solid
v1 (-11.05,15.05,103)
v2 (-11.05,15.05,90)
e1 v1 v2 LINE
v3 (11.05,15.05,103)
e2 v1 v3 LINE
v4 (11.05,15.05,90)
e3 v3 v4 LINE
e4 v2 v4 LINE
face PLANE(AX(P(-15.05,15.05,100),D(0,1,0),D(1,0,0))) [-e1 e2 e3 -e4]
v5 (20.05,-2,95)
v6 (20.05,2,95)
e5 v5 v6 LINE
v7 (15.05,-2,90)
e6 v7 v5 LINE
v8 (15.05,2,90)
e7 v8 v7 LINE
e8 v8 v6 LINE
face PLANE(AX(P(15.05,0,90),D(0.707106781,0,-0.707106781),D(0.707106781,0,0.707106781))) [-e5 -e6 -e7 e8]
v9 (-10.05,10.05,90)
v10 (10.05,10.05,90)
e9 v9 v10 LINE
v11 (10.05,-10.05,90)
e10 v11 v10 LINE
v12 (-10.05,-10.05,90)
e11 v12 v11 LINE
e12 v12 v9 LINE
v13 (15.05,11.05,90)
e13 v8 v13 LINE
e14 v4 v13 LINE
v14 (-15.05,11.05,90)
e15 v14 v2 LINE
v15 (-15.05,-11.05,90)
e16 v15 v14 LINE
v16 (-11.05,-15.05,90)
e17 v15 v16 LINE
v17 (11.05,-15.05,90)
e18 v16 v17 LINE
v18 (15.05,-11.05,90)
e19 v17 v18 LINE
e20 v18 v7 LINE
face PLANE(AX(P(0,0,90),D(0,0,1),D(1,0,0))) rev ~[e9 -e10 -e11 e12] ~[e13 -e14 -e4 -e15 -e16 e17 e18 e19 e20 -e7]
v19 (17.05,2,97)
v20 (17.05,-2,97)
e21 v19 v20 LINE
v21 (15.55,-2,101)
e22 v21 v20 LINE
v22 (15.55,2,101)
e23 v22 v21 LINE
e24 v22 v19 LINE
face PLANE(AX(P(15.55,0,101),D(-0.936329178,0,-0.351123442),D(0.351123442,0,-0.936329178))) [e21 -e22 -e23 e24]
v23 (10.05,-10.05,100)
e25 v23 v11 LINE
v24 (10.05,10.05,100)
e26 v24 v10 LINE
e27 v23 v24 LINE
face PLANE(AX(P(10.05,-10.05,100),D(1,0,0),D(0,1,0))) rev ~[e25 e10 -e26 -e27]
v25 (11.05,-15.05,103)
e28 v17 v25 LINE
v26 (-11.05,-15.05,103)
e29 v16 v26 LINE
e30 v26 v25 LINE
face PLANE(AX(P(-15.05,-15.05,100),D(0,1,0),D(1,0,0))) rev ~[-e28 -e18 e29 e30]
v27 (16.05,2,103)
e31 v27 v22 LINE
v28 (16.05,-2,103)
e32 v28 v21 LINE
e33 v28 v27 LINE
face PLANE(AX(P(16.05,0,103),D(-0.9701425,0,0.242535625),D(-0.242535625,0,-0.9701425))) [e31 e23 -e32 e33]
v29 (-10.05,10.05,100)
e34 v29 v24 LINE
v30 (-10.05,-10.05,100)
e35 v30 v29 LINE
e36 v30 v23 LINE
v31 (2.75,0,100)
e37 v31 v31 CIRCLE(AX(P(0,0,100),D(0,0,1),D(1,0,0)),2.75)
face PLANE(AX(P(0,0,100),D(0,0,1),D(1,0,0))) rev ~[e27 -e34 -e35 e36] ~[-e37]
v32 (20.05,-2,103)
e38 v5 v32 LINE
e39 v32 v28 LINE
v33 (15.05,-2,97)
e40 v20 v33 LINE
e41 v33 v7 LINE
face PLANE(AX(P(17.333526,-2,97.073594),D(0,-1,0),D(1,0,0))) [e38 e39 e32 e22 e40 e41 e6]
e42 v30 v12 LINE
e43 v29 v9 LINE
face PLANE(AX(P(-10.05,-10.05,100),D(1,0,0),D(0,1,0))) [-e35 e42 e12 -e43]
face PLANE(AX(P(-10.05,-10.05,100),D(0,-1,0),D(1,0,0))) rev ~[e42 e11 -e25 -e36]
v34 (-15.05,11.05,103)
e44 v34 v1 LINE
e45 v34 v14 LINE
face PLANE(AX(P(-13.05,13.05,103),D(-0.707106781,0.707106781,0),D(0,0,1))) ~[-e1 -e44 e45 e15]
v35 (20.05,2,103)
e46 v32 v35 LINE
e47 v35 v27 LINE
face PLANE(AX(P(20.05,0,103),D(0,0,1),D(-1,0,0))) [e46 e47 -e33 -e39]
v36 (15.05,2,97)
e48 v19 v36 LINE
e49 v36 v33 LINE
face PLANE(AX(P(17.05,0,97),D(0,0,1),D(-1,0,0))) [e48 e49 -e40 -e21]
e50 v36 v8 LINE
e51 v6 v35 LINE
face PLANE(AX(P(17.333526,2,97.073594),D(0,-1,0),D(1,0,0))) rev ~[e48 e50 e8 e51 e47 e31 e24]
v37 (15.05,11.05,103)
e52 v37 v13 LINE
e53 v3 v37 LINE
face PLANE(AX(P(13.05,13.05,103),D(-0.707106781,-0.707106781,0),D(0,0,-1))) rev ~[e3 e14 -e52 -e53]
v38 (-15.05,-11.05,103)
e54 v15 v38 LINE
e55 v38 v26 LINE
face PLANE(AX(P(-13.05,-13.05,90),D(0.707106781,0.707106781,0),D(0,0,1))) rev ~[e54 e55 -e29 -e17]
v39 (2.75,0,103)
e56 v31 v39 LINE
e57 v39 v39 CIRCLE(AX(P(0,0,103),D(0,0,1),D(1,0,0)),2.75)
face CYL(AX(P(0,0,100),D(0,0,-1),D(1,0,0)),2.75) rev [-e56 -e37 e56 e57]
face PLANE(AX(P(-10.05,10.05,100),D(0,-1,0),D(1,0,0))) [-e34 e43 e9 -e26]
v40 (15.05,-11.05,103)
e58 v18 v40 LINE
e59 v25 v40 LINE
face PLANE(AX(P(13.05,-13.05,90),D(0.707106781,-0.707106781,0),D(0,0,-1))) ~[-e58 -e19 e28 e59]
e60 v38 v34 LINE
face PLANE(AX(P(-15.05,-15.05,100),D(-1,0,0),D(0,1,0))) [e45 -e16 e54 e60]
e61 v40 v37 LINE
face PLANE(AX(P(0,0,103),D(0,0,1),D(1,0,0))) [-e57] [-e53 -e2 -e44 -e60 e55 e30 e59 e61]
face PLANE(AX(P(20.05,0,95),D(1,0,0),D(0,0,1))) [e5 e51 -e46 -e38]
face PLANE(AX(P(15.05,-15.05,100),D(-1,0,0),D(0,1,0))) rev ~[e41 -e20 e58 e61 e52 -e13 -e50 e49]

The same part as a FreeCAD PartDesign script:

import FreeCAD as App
import Part
import Sketcher
from FreeCAD import Vector
Q = App.Units.Quantity


def edges_at(feature, points):
    """Names of the edges that pass closest to the given points."""
    edges = feature.Shape.Edges
    near = lambda p: min(range(len(edges)), key=lambda i: edges[i].distToShape(Part.Vertex(*p))[0])
    return sorted({f"Edge{near(p) + 1}" for p in points})


def add_polygon(sketch, points):
    """Adds a closed chain of lines whose ends are joined by coincident constraints."""
    first, n = sketch.GeometryCount, len(points)
    for a, b in zip(points, points[1:] + points[:1]):
        sketch.addGeometry(Part.LineSegment(App.Vector(*a, 0), App.Vector(*b, 0)), False)
    for i in range(n):
        sketch.addConstraint(Sketcher.Constraint("Coincident", first + i, 2, first + (i + 1) % n, 1))

doc = App.newDocument("Part")
params = doc.addObject("Spreadsheet::Sheet", "Params")
for row, (alias, value) in enumerate([
    ("sketch1_width", "30.1 mm"),
    ("sketch1_width2", "20.1 mm"),
    ("pad1_length", "10 mm"),
    ("sketch2_diameter", "5.5 mm"),
    ("sketch2_width", "30.1 mm"),
    ("pad2_length", "3 mm"),
    ("sketch3_width", "2 mm"),
    ("sketch3_width2", "4 mm"),
    ("sketch3_height", "7 mm"),
    ("sketch3_height2", "8 mm"),
    ("pad3_length", "4 mm"),
    ("chamfer_size", "4 mm"),
], start=1):
    params.set(f"A{row}", alias)
    params.set(f"B{row}", "=" + value)
    params.setAlias(f"B{row}", alias)

body = doc.addObject("PartDesign::Body", "Body")

# Sketch on XY plane
sketch1 = doc.addObject("Sketcher::SketchObject", "Sketch")
body.addObject(sketch1)
sketch1.AttachmentSupport = (doc.XY_Plane, [""])
sketch1.MapMode = "FlatFace"
add_polygon(sketch1, [(-15, 15), (-15, -15), (15, -15), (15, 15)])  # lines 0-3
add_polygon(sketch1, [(10, -10), (-10, -10), (-10, 10), (10, 10)])  # lines 4-7
sketch1.addConstraint([
    Sketcher.Constraint("Vertical", 0),
    Sketcher.Constraint("Horizontal", 1),
    Sketcher.Constraint("Vertical", 2),
    Sketcher.Constraint("Horizontal", 3),
    Sketcher.Constraint("Horizontal", 4),
    Sketcher.Constraint("Vertical", 5),
    Sketcher.Constraint("Horizontal", 6),
    Sketcher.Constraint("Vertical", 7),
    Sketcher.Constraint("Symmetric", 0, 2, 2, 2, -1, 1),
    Sketcher.Constraint("Symmetric", 4, 2, 6, 2, -1, 1),
    Sketcher.Constraint("Equal", 3, 0),
    Sketcher.Constraint("Equal", 6, 5),
    Sketcher.Constraint("DistanceX", 1, 1, 1, 2, Q("30.1 mm")),
    Sketcher.Constraint("DistanceX", 4, 2, 4, 1, Q("20.1 mm")),
])
sketch1.setExpression("Constraints[20]", "Params.sketch1_width")
sketch1.setExpression("Constraints[21]", "Params.sketch1_width2")
pad1 = doc.addObject("PartDesign::Pad", "Pad")
body.addObject(pad1)
pad1.Profile = sketch1
pad1.setExpression("Length", "Params.pad1_length")
pad1.Reversed = True

# Sketch on XY plane
sketch2 = doc.addObject("Sketcher::SketchObject", "Sketch001")
body.addObject(sketch2)
sketch2.AttachmentSupport = (doc.XY_Plane, [""])
sketch2.MapMode = "FlatFace"
add_polygon(sketch2, [(-15.1, 15.1), (-15.1, -15.1), (15.1, -15.1), (15.1, 15.1)])  # lines 0-3
sketch2.addGeometry(Part.Circle(Vector(0, 0, 0), Vector(0, 0, 1), 2.8), False)  # 4
sketch2.addConstraint([
    Sketcher.Constraint("Vertical", 0),
    Sketcher.Constraint("Horizontal", 1),
    Sketcher.Constraint("Vertical", 2),
    Sketcher.Constraint("Horizontal", 3),
    Sketcher.Constraint("Coincident", 4, 3, -1, 1),
    Sketcher.Constraint("Symmetric", 0, 2, 2, 2, -1, 1),
    Sketcher.Constraint("Equal", 3, 0),
    Sketcher.Constraint("Diameter", 4, Q("5.5 mm")),
    Sketcher.Constraint("DistanceX", 1, 1, 1, 2, Q("30.1 mm")),
])
sketch2.setExpression("Constraints[11]", "Params.sketch2_diameter")
sketch2.setExpression("Constraints[12]", "Params.sketch2_width")
pad2 = doc.addObject("PartDesign::Pad", "Pad001")
body.addObject(pad2)
pad2.Profile = sketch2
pad2.setExpression("Length", "Params.pad2_length")

# Sketch on XZ plane
sketch3 = doc.addObject("Sketcher::SketchObject", "Sketch002")
body.addObject(sketch3)
sketch3.AttachmentSupport = (doc.XZ_Plane, [""])
sketch3.MapMode = "FlatFace"
add_polygon(sketch3, [(16.1, 3), (15.6, 1), (17.1, -3), (15.1, -3), (15.1, -10), (20.1, -5), (20.1, 3)])  # lines 0-6
sketch3.addConstraint([
    Sketcher.Constraint("Horizontal", 2),
    Sketcher.Constraint("Vertical", 3),
    Sketcher.Constraint("Vertical", 5),
    Sketcher.Constraint("Horizontal", 6),
    Sketcher.Constraint("DistanceX", 2, 2, 2, 1, Q("2 mm")),
    Sketcher.Constraint("DistanceX", 6, 2, 6, 1, Q("4 mm")),
    Sketcher.Constraint("DistanceY", 3, 2, 3, 1, Q("7 mm")),
    Sketcher.Constraint("DistanceY", 5, 1, 5, 2, Q("8 mm")),
    Sketcher.Constraint("Angle", 4, Q("45 deg")),
    Sketcher.Constraint("DistanceY", -1, 1, 0, 2, Q("1 mm")),
    Sketcher.Constraint("DistanceY", 1, 2, -1, 1, Q("3 mm")),
    Sketcher.Constraint("DistanceY", 4, 2, -1, 1, Q("5 mm")),
    Sketcher.Constraint("DistanceX", 0, 2, 1, 2, Q("1.5 mm")),
    Sketcher.Constraint("DistanceX", -1, 1, 0, 2, Q("15.55 mm")),
])
sketch3.setExpression("Constraints[11]", "Params.sketch3_width")
sketch3.setExpression("Constraints[12]", "Params.sketch3_width2")
sketch3.setExpression("Constraints[13]", "Params.sketch3_height")
sketch3.setExpression("Constraints[14]", "Params.sketch3_height2")
pad3 = doc.addObject("PartDesign::Pad", "Pad002")
body.addObject(pad3)
pad3.Profile = sketch3
pad3.setExpression("Length", "Params.pad3_length")
pad3.Midplane = True
doc.recompute()

chamfer = doc.addObject("PartDesign::Chamfer", "Chamfer")
body.addObject(chamfer)
chamfer.Base = (pad3, edges_at(pad3, [
    (15.05, -15.05, -3.5),
    (15.05, -15.05, -3.5),
    (-15.05, -15.05, -3.5),
    (-15.05, -15.05, -3.5),
    (15.05, 15.05, -3.5),
    (15.05, 15.05, -3.5),
    (-15.05, 15.05, -3.5),
    (-15.05, 15.05, -3.5),
]))
chamfer.setExpression("Size", "Params.chamfer_size")
body2 = doc.addObject("PartDesign::Body", "Body001")
doc.recompute()

body.Placement = App.Placement(Vector(0, 0, 100), App.Rotation(Vector(0, 0, 1), 0))
boolean = doc.addObject("PartDesign::Boolean", "Boolean")
body2.addObject(boolean)
boolean.Type = "Fuse"
boolean.addObjects([body])

doc.recompute()
